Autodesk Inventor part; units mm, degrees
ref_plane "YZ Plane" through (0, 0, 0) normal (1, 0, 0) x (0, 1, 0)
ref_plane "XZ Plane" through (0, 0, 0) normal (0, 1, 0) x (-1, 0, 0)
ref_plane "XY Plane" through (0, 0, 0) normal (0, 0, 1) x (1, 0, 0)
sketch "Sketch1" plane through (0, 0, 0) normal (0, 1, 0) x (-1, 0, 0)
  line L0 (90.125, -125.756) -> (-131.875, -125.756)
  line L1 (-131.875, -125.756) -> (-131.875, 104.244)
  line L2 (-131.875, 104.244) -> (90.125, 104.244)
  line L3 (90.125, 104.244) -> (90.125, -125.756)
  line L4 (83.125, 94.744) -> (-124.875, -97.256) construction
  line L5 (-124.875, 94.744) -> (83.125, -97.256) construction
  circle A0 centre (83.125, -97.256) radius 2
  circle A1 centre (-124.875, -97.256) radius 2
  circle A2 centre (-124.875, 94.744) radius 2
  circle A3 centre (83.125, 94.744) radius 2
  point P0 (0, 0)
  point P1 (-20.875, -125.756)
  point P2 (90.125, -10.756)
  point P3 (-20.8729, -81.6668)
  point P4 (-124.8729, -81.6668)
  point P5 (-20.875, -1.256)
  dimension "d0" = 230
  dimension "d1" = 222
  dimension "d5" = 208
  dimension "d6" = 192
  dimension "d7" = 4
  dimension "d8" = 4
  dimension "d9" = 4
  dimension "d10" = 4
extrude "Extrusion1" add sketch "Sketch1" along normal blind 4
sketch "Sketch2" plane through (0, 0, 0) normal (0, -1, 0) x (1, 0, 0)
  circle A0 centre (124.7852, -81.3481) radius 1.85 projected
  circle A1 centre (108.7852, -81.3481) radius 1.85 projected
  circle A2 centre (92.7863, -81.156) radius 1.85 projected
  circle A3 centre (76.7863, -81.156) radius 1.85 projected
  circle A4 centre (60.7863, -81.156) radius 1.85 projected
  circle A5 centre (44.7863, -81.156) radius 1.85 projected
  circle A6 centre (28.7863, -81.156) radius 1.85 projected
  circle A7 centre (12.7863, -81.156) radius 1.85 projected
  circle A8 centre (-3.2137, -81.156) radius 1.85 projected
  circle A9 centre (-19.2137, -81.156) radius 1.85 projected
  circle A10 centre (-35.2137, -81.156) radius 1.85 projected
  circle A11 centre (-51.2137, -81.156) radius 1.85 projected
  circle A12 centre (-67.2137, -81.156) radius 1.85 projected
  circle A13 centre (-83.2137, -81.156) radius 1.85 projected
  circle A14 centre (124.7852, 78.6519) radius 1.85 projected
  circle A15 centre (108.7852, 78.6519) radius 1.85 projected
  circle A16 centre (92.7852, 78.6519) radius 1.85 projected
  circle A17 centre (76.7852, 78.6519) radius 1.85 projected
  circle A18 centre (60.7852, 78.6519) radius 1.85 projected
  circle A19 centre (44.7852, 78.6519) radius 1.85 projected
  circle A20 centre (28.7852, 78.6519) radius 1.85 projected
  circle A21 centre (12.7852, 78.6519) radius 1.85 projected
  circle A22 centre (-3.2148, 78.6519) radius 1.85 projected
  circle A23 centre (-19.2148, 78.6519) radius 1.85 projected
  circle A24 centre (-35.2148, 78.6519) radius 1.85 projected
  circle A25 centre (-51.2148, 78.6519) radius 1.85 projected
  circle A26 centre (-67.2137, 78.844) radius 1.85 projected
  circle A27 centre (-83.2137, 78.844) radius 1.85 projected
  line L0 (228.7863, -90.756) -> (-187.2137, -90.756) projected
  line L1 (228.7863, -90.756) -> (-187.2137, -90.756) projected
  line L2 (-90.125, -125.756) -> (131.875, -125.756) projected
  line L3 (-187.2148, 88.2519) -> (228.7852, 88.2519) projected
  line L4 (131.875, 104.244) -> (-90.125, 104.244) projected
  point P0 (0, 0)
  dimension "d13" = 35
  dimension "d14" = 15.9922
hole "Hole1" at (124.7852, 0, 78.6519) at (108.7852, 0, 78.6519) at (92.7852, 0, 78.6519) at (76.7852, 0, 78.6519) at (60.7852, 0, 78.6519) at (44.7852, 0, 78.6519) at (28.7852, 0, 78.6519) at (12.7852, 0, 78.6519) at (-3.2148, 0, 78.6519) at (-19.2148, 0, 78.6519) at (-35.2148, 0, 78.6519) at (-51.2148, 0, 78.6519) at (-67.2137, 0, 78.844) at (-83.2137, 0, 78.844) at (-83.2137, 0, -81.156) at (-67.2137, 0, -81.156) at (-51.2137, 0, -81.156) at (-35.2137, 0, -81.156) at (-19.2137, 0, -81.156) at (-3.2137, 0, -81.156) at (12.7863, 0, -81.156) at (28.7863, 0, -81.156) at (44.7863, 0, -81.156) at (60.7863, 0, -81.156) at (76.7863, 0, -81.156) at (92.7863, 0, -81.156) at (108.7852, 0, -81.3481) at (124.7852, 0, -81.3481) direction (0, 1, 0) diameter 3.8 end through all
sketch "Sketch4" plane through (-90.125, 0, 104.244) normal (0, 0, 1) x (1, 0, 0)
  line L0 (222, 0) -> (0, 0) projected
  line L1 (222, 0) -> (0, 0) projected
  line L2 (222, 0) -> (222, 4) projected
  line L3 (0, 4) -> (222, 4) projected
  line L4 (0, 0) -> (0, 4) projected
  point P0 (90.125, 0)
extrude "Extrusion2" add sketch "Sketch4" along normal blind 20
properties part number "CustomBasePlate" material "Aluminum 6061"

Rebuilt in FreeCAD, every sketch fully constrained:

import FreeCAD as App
import Part
import Sketcher

V = App.Vector
Q = App.Units.Quantity


def add_polygon(sketch, points):
    """Adds a closed chain of lines whose ends are joined by coincident constraints."""
    first, n = sketch.GeometryCount, len(points)
    for a, b in zip(points, points[1:] + points[:1]):
        sketch.addGeometry(Part.LineSegment(App.Vector(*a, 0), App.Vector(*b, 0)), False)
    for i in range(n):
        sketch.addConstraint(Sketcher.Constraint("Coincident", first + i, 2, first + (i + 1) % n, 1))

doc = App.newDocument("Part")
body = doc.addObject("PartDesign::Body", "Body")

# Sketch on XZ plane
sketch1 = body.newObject("Sketcher::SketchObject", "Sketch")
sketch1.AttachmentSupport = (doc.getObject("XZ_Plane"), [""])
sketch1.MapMode = "FlatFace"
add_polygon(sketch1, [(131.9, -125.8), (-90.1, -125.8), (-90.1, 104.2), (131.9, 104.2)])  # lines 0-3
sketch1.addGeometry(Part.Circle(V(124.9, -97.3, 0), V(0, 0, 1), 2), False)  # 4
sketch1.addGeometry(Part.Circle(V(-83.1, -97.3, 0), V(0, 0, 1), 2), False)  # 5
sketch1.addGeometry(Part.Circle(V(124.9, 94.7, 0), V(0, 0, 1), 2), False)  # 6
sketch1.addGeometry(Part.Circle(V(-83.1, 94.7, 0), V(0, 0, 1), 2), False)  # 7
sketch1.addConstraint(Sketcher.Constraint("Horizontal", 0))
sketch1.addConstraint(Sketcher.Constraint("Vertical", 1))
sketch1.addConstraint(Sketcher.Constraint("Horizontal", 2))
sketch1.addConstraint(Sketcher.Constraint("Vertical", 3))
sketch1.addConstraint(Sketcher.Constraint("Equal", 4, 5))
sketch1.addConstraint(Sketcher.Constraint("Equal", 5, 6))
sketch1.addConstraint(Sketcher.Constraint("Equal", 6, 7))
sketch1.addConstraint(Sketcher.Constraint("Horizontal", 4, 3, 5, 3))
sketch1.addConstraint(Sketcher.Constraint("Horizontal", 6, 3, 7, 3))
sketch1.addConstraint(Sketcher.Constraint("Vertical", 4, 3, 6, 3))
sketch1.addConstraint(Sketcher.Constraint("Vertical", 5, 3, 7, 3))
sketch1.addConstraint(Sketcher.Constraint("Diameter", 4, Q("4 mm")))
sketch1.addConstraint(Sketcher.Constraint("DistanceX", 0, 2, 0, 1, Q("222 mm")))
sketch1.addConstraint(Sketcher.Constraint("DistanceY", 1, 1, 1, 2, Q("230 mm")))
sketch1.addConstraint(Sketcher.Constraint("DistanceX", 5, 3, 4, 3, Q("208 mm")))
sketch1.addConstraint(Sketcher.Constraint("DistanceY", 4, 3, 6, 3, Q("192 mm")))
sketch1.addConstraint(Sketcher.Constraint("DistanceX", 0, 2, 5, 3, Q("7 mm")))
sketch1.addConstraint(Sketcher.Constraint("DistanceY", 0, 2, 5, 3, Q("28.5 mm")))
sketch1.addConstraint(Sketcher.Constraint("DistanceX", -1, 1, 4, 3, Q("124.875 mm")))
sketch1.addConstraint(Sketcher.Constraint("DistanceY", 4, 3, -1, 1, Q("97.256 mm")))
pad1 = body.newObject("PartDesign::Pad", "Pad")
pad1.Profile = sketch1
pad1.Length = 4
pad1.Reversed = True

# Sketch on XZ plane
sketch2 = body.newObject("Sketcher::SketchObject", "Sketch001")
sketch2.AttachmentSupport = (doc.getObject("XZ_Plane"), [""])
sketch2.MapMode = "FlatFace"
sketch2.addGeometry(Part.Circle(V(124.8, 78.7, 0), V(0, 0, 1), 1.9), False)
sketch2.addGeometry(Part.Circle(V(108.8, 78.7, 0), V(0, 0, 1), 1.9), False)
sketch2.addGeometry(Part.Circle(V(92.8, 78.7, 0), V(0, 0, 1), 1.9), False)
sketch2.addGeometry(Part.Circle(V(76.8, 78.7, 0), V(0, 0, 1), 1.9), False)
sketch2.addGeometry(Part.Circle(V(60.8, 78.7, 0), V(0, 0, 1), 1.9), False)
sketch2.addGeometry(Part.Circle(V(44.8, 78.7, 0), V(0, 0, 1), 1.9), False)
sketch2.addGeometry(Part.Circle(V(28.8, 78.7, 0), V(0, 0, 1), 1.9), False)
sketch2.addGeometry(Part.Circle(V(12.8, 78.7, 0), V(0, 0, 1), 1.9), False)
sketch2.addGeometry(Part.Circle(V(-3.2, 78.7, 0), V(0, 0, 1), 1.9), False)
sketch2.addGeometry(Part.Circle(V(-19.2, 78.7, 0), V(0, 0, 1), 1.9), False)
sketch2.addGeometry(Part.Circle(V(-35.2, 78.7, 0), V(0, 0, 1), 1.9), False)
sketch2.addGeometry(Part.Circle(V(-51.2, 78.7, 0), V(0, 0, 1), 1.9), False)
sketch2.addGeometry(Part.Circle(V(-67.2, 78.8, 0), V(0, 0, 1), 1.9), False)
sketch2.addGeometry(Part.Circle(V(-83.2, 78.8, 0), V(0, 0, 1), 1.9), False)
sketch2.addGeometry(Part.Circle(V(-83.2, -81.2, 0), V(0, 0, 1), 1.9), False)
sketch2.addGeometry(Part.Circle(V(-67.2, -81.2, 0), V(0, 0, 1), 1.9), False)
sketch2.addGeometry(Part.Circle(V(-51.2, -81.2, 0), V(0, 0, 1), 1.9), False)
sketch2.addGeometry(Part.Circle(V(-35.2, -81.2, 0), V(0, 0, 1), 1.9), False)
sketch2.addGeometry(Part.Circle(V(-19.2, -81.2, 0), V(0, 0, 1), 1.9), False)
sketch2.addGeometry(Part.Circle(V(-3.2, -81.2, 0), V(0, 0, 1), 1.9), False)
sketch2.addGeometry(Part.Circle(V(12.8, -81.2, 0), V(0, 0, 1), 1.9), False)
sketch2.addGeometry(Part.Circle(V(28.8, -81.2, 0), V(0, 0, 1), 1.9), False)
sketch2.addGeometry(Part.Circle(V(44.8, -81.2, 0), V(0, 0, 1), 1.9), False)
sketch2.addGeometry(Part.Circle(V(60.8, -81.2, 0), V(0, 0, 1), 1.9), False)
sketch2.addGeometry(Part.Circle(V(76.8, -81.2, 0), V(0, 0, 1), 1.9), False)
sketch2.addGeometry(Part.Circle(V(92.8, -81.2, 0), V(0, 0, 1), 1.9), False)
sketch2.addGeometry(Part.Circle(V(108.8, -81.3, 0), V(0, 0, 1), 1.9), False)
sketch2.addGeometry(Part.Circle(V(124.8, -81.3, 0), V(0, 0, 1), 1.9), False)
sketch2.addConstraint(Sketcher.Constraint("Equal", 0, 1))
sketch2.addConstraint(Sketcher.Constraint("Equal", 1, 2))
sketch2.addConstraint(Sketcher.Constraint("Equal", 2, 3))
sketch2.addConstraint(Sketcher.Constraint("Equal", 3, 4))
sketch2.addConstraint(Sketcher.Constraint("Equal", 4, 5))
sketch2.addConstraint(Sketcher.Constraint("Equal", 5, 6))
sketch2.addConstraint(Sketcher.Constraint("Equal", 6, 7))
sketch2.addConstraint(Sketcher.Constraint("Equal", 7, 8))
sketch2.addConstraint(Sketcher.Constraint("Equal", 8, 9))
sketch2.addConstraint(Sketcher.Constraint("Equal", 9, 10))
sketch2.addConstraint(Sketcher.Constraint("Equal", 10, 11))
sketch2.addConstraint(Sketcher.Constraint("Equal", 11, 12))
sketch2.addConstraint(Sketcher.Constraint("Equal", 12, 13))
sketch2.addConstraint(Sketcher.Constraint("Equal", 13, 14))
sketch2.addConstraint(Sketcher.Constraint("Equal", 14, 15))
sketch2.addConstraint(Sketcher.Constraint("Equal", 15, 16))
sketch2.addConstraint(Sketcher.Constraint("Equal", 16, 17))
sketch2.addConstraint(Sketcher.Constraint("Equal", 17, 18))
sketch2.addConstraint(Sketcher.Constraint("Equal", 18, 19))
sketch2.addConstraint(Sketcher.Constraint("Equal", 19, 20))
sketch2.addConstraint(Sketcher.Constraint("Equal", 20, 21))
sketch2.addConstraint(Sketcher.Constraint("Equal", 21, 22))
sketch2.addConstraint(Sketcher.Constraint("Equal", 22, 23))
sketch2.addConstraint(Sketcher.Constraint("Equal", 23, 24))
sketch2.addConstraint(Sketcher.Constraint("Equal", 24, 25))
sketch2.addConstraint(Sketcher.Constraint("Equal", 25, 26))
sketch2.addConstraint(Sketcher.Constraint("Equal", 26, 27))
sketch2.addConstraint(Sketcher.Constraint("Horizontal", 0, 3, 1, 3))
sketch2.addConstraint(Sketcher.Constraint("Horizontal", 1, 3, 2, 3))
sketch2.addConstraint(Sketcher.Constraint("Horizontal", 2, 3, 3, 3))
sketch2.addConstraint(Sketcher.Constraint("Horizontal", 3, 3, 4, 3))
sketch2.addConstraint(Sketcher.Constraint("Horizontal", 4, 3, 5, 3))
sketch2.addConstraint(Sketcher.Constraint("Horizontal", 5, 3, 6, 3))
sketch2.addConstraint(Sketcher.Constraint("Horizontal", 6, 3, 7, 3))
sketch2.addConstraint(Sketcher.Constraint("Horizontal", 7, 3, 8, 3))
sketch2.addConstraint(Sketcher.Constraint("Horizontal", 8, 3, 9, 3))
sketch2.addConstraint(Sketcher.Constraint("Horizontal", 9, 3, 10, 3))
sketch2.addConstraint(Sketcher.Constraint("Horizontal", 10, 3, 11, 3))
sketch2.addConstraint(Sketcher.Constraint("Horizontal", 12, 3, 13, 3))
sketch2.addConstraint(Sketcher.Constraint("Horizontal", 14, 3, 15, 3))
sketch2.addConstraint(Sketcher.Constraint("Horizontal", 15, 3, 16, 3))
sketch2.addConstraint(Sketcher.Constraint("Horizontal", 16, 3, 17, 3))
sketch2.addConstraint(Sketcher.Constraint("Horizontal", 17, 3, 18, 3))
sketch2.addConstraint(Sketcher.Constraint("Horizontal", 18, 3, 19, 3))
sketch2.addConstraint(Sketcher.Constraint("Horizontal", 19, 3, 20, 3))
sketch2.addConstraint(Sketcher.Constraint("Horizontal", 20, 3, 21, 3))
sketch2.addConstraint(Sketcher.Constraint("Horizontal", 21, 3, 22, 3))
sketch2.addConstraint(Sketcher.Constraint("Horizontal", 22, 3, 23, 3))
sketch2.addConstraint(Sketcher.Constraint("Horizontal", 23, 3, 24, 3))
sketch2.addConstraint(Sketcher.Constraint("Horizontal", 24, 3, 25, 3))
sketch2.addConstraint(Sketcher.Constraint("Horizontal", 26, 3, 27, 3))
sketch2.addConstraint(Sketcher.Constraint("Vertical", 13, 3, 14, 3))
sketch2.addConstraint(Sketcher.Constraint("Vertical", 12, 3, 15, 3))
sketch2.addConstraint(Sketcher.Constraint("Vertical", 1, 3, 26, 3))
sketch2.addConstraint(Sketcher.Constraint("Vertical", 0, 3, 27, 3))
sketch2.addConstraint(Sketcher.Constraint("Diameter", 0, Q("3.8 mm")))
sketch2.addConstraint(Sketcher.Constraint("DistanceX", 1, 3, 0, 3, Q("16 mm")))
sketch2.addConstraint(Sketcher.Constraint("DistanceX", 2, 3, 1, 3, Q("16 mm")))
sketch2.addConstraint(Sketcher.Constraint("DistanceX", 3, 3, 2, 3, Q("16 mm")))
sketch2.addConstraint(Sketcher.Constraint("DistanceX", 4, 3, 3, 3, Q("16 mm")))
sketch2.addConstraint(Sketcher.Constraint("DistanceX", 5, 3, 4, 3, Q("16 mm")))
sketch2.addConstraint(Sketcher.Constraint("DistanceX", 6, 3, 5, 3, Q("16 mm")))
sketch2.addConstraint(Sketcher.Constraint("DistanceX", 7, 3, 6, 3, Q("16 mm")))
sketch2.addConstraint(Sketcher.Constraint("DistanceX", 8, 3, 7, 3, Q("16 mm")))
sketch2.addConstraint(Sketcher.Constraint("DistanceX", 9, 3, 8, 3, Q("16 mm")))
sketch2.addConstraint(Sketcher.Constraint("DistanceX", 10, 3, 9, 3, Q("16 mm")))
sketch2.addConstraint(Sketcher.Constraint("DistanceX", 11, 3, 10, 3, Q("16 mm")))
sketch2.addConstraint(Sketcher.Constraint("DistanceX", 13, 3, 12, 3, Q("16 mm")))
sketch2.addConstraint(Sketcher.Constraint("DistanceY", 14, 3, 13, 3, Q("160 mm")))
sketch2.addConstraint(Sketcher.Constraint("DistanceX", 15, 3, 16, 3, Q("16 mm")))
sketch2.addConstraint(Sketcher.Constraint("DistanceX", 16, 3, 17, 3, Q("16 mm")))
sketch2.addConstraint(Sketcher.Constraint("DistanceX", 17, 3, 18, 3, Q("16 mm")))
sketch2.addConstraint(Sketcher.Constraint("DistanceX", 18, 3, 19, 3, Q("16 mm")))
sketch2.addConstraint(Sketcher.Constraint("DistanceX", 19, 3, 20, 3, Q("16 mm")))
sketch2.addConstraint(Sketcher.Constraint("DistanceX", 20, 3, 21, 3, Q("16 mm")))
sketch2.addConstraint(Sketcher.Constraint("DistanceX", 21, 3, 22, 3, Q("16 mm")))
sketch2.addConstraint(Sketcher.Constraint("DistanceX", 22, 3, 23, 3, Q("16 mm")))
sketch2.addConstraint(Sketcher.Constraint("DistanceX", 23, 3, 24, 3, Q("16 mm")))
sketch2.addConstraint(Sketcher.Constraint("DistanceX", 24, 3, 25, 3, Q("16 mm")))
sketch2.addConstraint(Sketcher.Constraint("DistanceY", -1, 1, 0, 3, Q("78.652 mm")))
sketch2.addConstraint(Sketcher.Constraint("DistanceY", -1, 1, 12, 3, Q("78.844 mm")))
sketch2.addConstraint(Sketcher.Constraint("DistanceY", 26, 3, -1, 1, Q("81.348 mm")))
sketch2.addConstraint(Sketcher.Constraint("DistanceX", 12, 3, 11, 3, Q("15.999 mm")))
sketch2.addConstraint(Sketcher.Constraint("DistanceX", -1, 1, 0, 3, Q("124.7852 mm")))
doc.recompute()
hole = body.newObject("PartDesign::Hole", "Hole")
hole.Profile = sketch2
hole.ThreadType = "None"
hole.Diameter = 3.8
hole.DepthType = "ThroughAll"

# Sketch on XY plane
sketch3 = body.newObject("Sketcher::SketchObject", "Sketch002")
sketch3.AttachmentSupport = (doc.getObject("XY_Plane"), [""])
sketch3.MapMode = "FlatFace"
sketch3.AttachmentOffset = App.Placement(V(0, 0, 104.244), App.Rotation())
add_polygon(sketch3, [(-90.1, 0), (131.9, 0), (131.9, 4), (-90.1, 4)])  # lines 0-3
sketch3.addConstraint(Sketcher.Constraint("Horizontal", 0))
sketch3.addConstraint(Sketcher.Constraint("Vertical", 1))
sketch3.addConstraint(Sketcher.Constraint("Horizontal", 2))
sketch3.addConstraint(Sketcher.Constraint("Vertical", 3))
sketch3.addConstraint(Sketcher.Constraint("PointOnObject", 0, 2, -1))
sketch3.addConstraint(Sketcher.Constraint("DistanceX", 0, 1, 0, 2, Q("222 mm")))
sketch3.addConstraint(Sketcher.Constraint("DistanceY", 1, 1, 1, 2, Q("4 mm")))
sketch3.addConstraint(Sketcher.Constraint("DistanceX", -1, 1, 0, 2, Q("131.875 mm")))
pad2 = body.newObject("PartDesign::Pad", "Pad001")
pad2.Profile = sketch3
pad2.Length = 20

doc.recompute()
